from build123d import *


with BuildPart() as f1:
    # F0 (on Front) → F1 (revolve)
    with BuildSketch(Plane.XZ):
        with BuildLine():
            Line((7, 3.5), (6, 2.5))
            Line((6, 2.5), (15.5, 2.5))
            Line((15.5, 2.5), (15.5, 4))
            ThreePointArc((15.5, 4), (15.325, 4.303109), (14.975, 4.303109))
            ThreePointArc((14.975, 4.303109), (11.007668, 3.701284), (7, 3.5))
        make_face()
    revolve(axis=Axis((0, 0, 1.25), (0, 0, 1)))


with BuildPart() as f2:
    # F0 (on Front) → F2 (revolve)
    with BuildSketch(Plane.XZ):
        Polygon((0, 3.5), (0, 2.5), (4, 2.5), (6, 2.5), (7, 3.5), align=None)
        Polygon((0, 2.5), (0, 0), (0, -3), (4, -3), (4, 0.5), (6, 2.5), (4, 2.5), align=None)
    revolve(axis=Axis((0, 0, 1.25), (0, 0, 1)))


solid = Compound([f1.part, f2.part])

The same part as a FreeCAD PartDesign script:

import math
import FreeCAD as App
import Part
import Sketcher
from FreeCAD import Vector
Q = App.Units.Quantity

doc = App.newDocument("Part")
body = doc.addObject("PartDesign::Body", "Body")

# Sketch on XZ plane
sketch1 = body.newObject("Sketcher::SketchObject", "Sketch")
sketch1.AttachmentSupport = (doc.getObject("XZ_Plane"), [""])
sketch1.MapMode = "FlatFace"
sketch1.addGeometry(Part.LineSegment(Vector(7, 3.5, 0), Vector(6, 2.5, 0)), False)
sketch1.addGeometry(Part.LineSegment(Vector(6, 2.5, 0), Vector(15.5, 2.5, 0)), False)
sketch1.addGeometry(Part.LineSegment(Vector(15.5, 2.5, 0), Vector(15.5, 4, 0)), False)
sketch1.addGeometry(Part.ArcOfCircle(Part.Circle(Vector(15.15, 4, 0), Vector(0, 0, 1), 0.35), math.radians(0), math.radians(120)), False)
sketch1.addGeometry(Part.ArcOfCircle(Part.Circle(Vector(7, 43.5, 0), Vector(0, 0, 1), 40), math.radians(-90), math.radians(-78.5)), False)
sketch1.addConstraint(Sketcher.Constraint("Coincident", 0, 2, 1, 1))
sketch1.addConstraint(Sketcher.Constraint("Coincident", 1, 2, 2, 1))
sketch1.addConstraint(Sketcher.Constraint("Tangent", 2, 2, 3, 1))
sketch1.addConstraint(Sketcher.Constraint("Coincident", 3, 2, 4, 2))
sketch1.addConstraint(Sketcher.Constraint("Coincident", 4, 1, 0, 1))
sketch1.addConstraint(Sketcher.Constraint("Horizontal", 1))
sketch1.addConstraint(Sketcher.Constraint("Vertical", 2))
sketch1.addConstraint(Sketcher.Constraint("Angle", 0, Q("-135 deg")))
sketch1.addConstraint(Sketcher.Constraint("Radius", 3, 0.35))
sketch1.addConstraint(Sketcher.Constraint("DistanceX", 1, 1, 1, 2, 9.5))
sketch1.addConstraint(Sketcher.Constraint("DistanceY", 2, 1, 2, 2, 1.5))
sketch1.addConstraint(Sketcher.Constraint("DistanceY", -1, 1, 3, 3, 4.0))
sketch1.addConstraint(Sketcher.Constraint("DistanceX", -1, 1, 0, 2, 6.0))
sketch1.addConstraint(Sketcher.Constraint("DistanceX", -1, 1, 4, 1, 7.0))
sketch1.addConstraint(Sketcher.Constraint("Radius", 4, 39.998118))
sketch1.addConstraint(Sketcher.Constraint("DistanceX", -1, 1, 3, 2, 14.975))
revolution = body.newObject("PartDesign::Revolution", "Revolution")
revolution.Profile = sketch1
revolution.ReferenceAxis = (sketch1, ["V_Axis"])
revolution.Angle = 360
body2 = doc.addObject("PartDesign::Body", "Body001")

# Sketch on XZ plane
sketch2 = body2.newObject("Sketcher::SketchObject", "Sketch001")
sketch2.AttachmentSupport = (doc.getObject("XZ_Plane001"), [""])
sketch2.MapMode = "FlatFace"
sketch2.addGeometry(Part.LineSegment(Vector(0, 3.5, 0), Vector(0, -3, 0)), False)
sketch2.addGeometry(Part.LineSegment(Vector(0, -3, 0), Vector(4, -3, 0)), False)
sketch2.addGeometry(Part.LineSegment(Vector(4, -3, 0), Vector(4, 0.5, 0)), False)
sketch2.addGeometry(Part.LineSegment(Vector(4, 0.5, 0), Vector(7, 3.5, 0)), False)
sketch2.addGeometry(Part.LineSegment(Vector(7, 3.5, 0), Vector(0, 3.5, 0)), False)
sketch2.addConstraint(Sketcher.Constraint("Coincident", 0, 2, 1, 1))
sketch2.addConstraint(Sketcher.Constraint("Coincident", 1, 2, 2, 1))
sketch2.addConstraint(Sketcher.Constraint("Coincident", 2, 2, 3, 1))
sketch2.addConstraint(Sketcher.Constraint("Coincident", 3, 2, 4, 1))
sketch2.addConstraint(Sketcher.Constraint("Coincident", 4, 2, 0, 1))
sketch2.addConstraint(Sketcher.Constraint("Vertical", 0))
sketch2.addConstraint(Sketcher.Constraint("Horizontal", 1))
sketch2.addConstraint(Sketcher.Constraint("Vertical", 2))
sketch2.addConstraint(Sketcher.Constraint("Horizontal", 4))
sketch2.addConstraint(Sketcher.Constraint("PointOnObject", 0, 2, -2))
sketch2.addConstraint(Sketcher.Constraint("DistanceX", 1, 1, 1, 2, 4.0))
sketch2.addConstraint(Sketcher.Constraint("DistanceX", 4, 2, 4, 1, 7.0))
sketch2.addConstraint(Sketcher.Constraint("Angle", 3, Q("45 deg")))
sketch2.addConstraint(Sketcher.Constraint("DistanceY", 0, 2, 0, 1, 6.5))
sketch2.addConstraint(Sketcher.Constraint("DistanceY", 0, 2, -1, 1, 3.0))
revolution2 = body2.newObject("PartDesign::Revolution", "Revolution001")
revolution2.Profile = sketch2
revolution2.ReferenceAxis = (sketch2, ["V_Axis"])
revolution2.Angle = 360

doc.recompute()
